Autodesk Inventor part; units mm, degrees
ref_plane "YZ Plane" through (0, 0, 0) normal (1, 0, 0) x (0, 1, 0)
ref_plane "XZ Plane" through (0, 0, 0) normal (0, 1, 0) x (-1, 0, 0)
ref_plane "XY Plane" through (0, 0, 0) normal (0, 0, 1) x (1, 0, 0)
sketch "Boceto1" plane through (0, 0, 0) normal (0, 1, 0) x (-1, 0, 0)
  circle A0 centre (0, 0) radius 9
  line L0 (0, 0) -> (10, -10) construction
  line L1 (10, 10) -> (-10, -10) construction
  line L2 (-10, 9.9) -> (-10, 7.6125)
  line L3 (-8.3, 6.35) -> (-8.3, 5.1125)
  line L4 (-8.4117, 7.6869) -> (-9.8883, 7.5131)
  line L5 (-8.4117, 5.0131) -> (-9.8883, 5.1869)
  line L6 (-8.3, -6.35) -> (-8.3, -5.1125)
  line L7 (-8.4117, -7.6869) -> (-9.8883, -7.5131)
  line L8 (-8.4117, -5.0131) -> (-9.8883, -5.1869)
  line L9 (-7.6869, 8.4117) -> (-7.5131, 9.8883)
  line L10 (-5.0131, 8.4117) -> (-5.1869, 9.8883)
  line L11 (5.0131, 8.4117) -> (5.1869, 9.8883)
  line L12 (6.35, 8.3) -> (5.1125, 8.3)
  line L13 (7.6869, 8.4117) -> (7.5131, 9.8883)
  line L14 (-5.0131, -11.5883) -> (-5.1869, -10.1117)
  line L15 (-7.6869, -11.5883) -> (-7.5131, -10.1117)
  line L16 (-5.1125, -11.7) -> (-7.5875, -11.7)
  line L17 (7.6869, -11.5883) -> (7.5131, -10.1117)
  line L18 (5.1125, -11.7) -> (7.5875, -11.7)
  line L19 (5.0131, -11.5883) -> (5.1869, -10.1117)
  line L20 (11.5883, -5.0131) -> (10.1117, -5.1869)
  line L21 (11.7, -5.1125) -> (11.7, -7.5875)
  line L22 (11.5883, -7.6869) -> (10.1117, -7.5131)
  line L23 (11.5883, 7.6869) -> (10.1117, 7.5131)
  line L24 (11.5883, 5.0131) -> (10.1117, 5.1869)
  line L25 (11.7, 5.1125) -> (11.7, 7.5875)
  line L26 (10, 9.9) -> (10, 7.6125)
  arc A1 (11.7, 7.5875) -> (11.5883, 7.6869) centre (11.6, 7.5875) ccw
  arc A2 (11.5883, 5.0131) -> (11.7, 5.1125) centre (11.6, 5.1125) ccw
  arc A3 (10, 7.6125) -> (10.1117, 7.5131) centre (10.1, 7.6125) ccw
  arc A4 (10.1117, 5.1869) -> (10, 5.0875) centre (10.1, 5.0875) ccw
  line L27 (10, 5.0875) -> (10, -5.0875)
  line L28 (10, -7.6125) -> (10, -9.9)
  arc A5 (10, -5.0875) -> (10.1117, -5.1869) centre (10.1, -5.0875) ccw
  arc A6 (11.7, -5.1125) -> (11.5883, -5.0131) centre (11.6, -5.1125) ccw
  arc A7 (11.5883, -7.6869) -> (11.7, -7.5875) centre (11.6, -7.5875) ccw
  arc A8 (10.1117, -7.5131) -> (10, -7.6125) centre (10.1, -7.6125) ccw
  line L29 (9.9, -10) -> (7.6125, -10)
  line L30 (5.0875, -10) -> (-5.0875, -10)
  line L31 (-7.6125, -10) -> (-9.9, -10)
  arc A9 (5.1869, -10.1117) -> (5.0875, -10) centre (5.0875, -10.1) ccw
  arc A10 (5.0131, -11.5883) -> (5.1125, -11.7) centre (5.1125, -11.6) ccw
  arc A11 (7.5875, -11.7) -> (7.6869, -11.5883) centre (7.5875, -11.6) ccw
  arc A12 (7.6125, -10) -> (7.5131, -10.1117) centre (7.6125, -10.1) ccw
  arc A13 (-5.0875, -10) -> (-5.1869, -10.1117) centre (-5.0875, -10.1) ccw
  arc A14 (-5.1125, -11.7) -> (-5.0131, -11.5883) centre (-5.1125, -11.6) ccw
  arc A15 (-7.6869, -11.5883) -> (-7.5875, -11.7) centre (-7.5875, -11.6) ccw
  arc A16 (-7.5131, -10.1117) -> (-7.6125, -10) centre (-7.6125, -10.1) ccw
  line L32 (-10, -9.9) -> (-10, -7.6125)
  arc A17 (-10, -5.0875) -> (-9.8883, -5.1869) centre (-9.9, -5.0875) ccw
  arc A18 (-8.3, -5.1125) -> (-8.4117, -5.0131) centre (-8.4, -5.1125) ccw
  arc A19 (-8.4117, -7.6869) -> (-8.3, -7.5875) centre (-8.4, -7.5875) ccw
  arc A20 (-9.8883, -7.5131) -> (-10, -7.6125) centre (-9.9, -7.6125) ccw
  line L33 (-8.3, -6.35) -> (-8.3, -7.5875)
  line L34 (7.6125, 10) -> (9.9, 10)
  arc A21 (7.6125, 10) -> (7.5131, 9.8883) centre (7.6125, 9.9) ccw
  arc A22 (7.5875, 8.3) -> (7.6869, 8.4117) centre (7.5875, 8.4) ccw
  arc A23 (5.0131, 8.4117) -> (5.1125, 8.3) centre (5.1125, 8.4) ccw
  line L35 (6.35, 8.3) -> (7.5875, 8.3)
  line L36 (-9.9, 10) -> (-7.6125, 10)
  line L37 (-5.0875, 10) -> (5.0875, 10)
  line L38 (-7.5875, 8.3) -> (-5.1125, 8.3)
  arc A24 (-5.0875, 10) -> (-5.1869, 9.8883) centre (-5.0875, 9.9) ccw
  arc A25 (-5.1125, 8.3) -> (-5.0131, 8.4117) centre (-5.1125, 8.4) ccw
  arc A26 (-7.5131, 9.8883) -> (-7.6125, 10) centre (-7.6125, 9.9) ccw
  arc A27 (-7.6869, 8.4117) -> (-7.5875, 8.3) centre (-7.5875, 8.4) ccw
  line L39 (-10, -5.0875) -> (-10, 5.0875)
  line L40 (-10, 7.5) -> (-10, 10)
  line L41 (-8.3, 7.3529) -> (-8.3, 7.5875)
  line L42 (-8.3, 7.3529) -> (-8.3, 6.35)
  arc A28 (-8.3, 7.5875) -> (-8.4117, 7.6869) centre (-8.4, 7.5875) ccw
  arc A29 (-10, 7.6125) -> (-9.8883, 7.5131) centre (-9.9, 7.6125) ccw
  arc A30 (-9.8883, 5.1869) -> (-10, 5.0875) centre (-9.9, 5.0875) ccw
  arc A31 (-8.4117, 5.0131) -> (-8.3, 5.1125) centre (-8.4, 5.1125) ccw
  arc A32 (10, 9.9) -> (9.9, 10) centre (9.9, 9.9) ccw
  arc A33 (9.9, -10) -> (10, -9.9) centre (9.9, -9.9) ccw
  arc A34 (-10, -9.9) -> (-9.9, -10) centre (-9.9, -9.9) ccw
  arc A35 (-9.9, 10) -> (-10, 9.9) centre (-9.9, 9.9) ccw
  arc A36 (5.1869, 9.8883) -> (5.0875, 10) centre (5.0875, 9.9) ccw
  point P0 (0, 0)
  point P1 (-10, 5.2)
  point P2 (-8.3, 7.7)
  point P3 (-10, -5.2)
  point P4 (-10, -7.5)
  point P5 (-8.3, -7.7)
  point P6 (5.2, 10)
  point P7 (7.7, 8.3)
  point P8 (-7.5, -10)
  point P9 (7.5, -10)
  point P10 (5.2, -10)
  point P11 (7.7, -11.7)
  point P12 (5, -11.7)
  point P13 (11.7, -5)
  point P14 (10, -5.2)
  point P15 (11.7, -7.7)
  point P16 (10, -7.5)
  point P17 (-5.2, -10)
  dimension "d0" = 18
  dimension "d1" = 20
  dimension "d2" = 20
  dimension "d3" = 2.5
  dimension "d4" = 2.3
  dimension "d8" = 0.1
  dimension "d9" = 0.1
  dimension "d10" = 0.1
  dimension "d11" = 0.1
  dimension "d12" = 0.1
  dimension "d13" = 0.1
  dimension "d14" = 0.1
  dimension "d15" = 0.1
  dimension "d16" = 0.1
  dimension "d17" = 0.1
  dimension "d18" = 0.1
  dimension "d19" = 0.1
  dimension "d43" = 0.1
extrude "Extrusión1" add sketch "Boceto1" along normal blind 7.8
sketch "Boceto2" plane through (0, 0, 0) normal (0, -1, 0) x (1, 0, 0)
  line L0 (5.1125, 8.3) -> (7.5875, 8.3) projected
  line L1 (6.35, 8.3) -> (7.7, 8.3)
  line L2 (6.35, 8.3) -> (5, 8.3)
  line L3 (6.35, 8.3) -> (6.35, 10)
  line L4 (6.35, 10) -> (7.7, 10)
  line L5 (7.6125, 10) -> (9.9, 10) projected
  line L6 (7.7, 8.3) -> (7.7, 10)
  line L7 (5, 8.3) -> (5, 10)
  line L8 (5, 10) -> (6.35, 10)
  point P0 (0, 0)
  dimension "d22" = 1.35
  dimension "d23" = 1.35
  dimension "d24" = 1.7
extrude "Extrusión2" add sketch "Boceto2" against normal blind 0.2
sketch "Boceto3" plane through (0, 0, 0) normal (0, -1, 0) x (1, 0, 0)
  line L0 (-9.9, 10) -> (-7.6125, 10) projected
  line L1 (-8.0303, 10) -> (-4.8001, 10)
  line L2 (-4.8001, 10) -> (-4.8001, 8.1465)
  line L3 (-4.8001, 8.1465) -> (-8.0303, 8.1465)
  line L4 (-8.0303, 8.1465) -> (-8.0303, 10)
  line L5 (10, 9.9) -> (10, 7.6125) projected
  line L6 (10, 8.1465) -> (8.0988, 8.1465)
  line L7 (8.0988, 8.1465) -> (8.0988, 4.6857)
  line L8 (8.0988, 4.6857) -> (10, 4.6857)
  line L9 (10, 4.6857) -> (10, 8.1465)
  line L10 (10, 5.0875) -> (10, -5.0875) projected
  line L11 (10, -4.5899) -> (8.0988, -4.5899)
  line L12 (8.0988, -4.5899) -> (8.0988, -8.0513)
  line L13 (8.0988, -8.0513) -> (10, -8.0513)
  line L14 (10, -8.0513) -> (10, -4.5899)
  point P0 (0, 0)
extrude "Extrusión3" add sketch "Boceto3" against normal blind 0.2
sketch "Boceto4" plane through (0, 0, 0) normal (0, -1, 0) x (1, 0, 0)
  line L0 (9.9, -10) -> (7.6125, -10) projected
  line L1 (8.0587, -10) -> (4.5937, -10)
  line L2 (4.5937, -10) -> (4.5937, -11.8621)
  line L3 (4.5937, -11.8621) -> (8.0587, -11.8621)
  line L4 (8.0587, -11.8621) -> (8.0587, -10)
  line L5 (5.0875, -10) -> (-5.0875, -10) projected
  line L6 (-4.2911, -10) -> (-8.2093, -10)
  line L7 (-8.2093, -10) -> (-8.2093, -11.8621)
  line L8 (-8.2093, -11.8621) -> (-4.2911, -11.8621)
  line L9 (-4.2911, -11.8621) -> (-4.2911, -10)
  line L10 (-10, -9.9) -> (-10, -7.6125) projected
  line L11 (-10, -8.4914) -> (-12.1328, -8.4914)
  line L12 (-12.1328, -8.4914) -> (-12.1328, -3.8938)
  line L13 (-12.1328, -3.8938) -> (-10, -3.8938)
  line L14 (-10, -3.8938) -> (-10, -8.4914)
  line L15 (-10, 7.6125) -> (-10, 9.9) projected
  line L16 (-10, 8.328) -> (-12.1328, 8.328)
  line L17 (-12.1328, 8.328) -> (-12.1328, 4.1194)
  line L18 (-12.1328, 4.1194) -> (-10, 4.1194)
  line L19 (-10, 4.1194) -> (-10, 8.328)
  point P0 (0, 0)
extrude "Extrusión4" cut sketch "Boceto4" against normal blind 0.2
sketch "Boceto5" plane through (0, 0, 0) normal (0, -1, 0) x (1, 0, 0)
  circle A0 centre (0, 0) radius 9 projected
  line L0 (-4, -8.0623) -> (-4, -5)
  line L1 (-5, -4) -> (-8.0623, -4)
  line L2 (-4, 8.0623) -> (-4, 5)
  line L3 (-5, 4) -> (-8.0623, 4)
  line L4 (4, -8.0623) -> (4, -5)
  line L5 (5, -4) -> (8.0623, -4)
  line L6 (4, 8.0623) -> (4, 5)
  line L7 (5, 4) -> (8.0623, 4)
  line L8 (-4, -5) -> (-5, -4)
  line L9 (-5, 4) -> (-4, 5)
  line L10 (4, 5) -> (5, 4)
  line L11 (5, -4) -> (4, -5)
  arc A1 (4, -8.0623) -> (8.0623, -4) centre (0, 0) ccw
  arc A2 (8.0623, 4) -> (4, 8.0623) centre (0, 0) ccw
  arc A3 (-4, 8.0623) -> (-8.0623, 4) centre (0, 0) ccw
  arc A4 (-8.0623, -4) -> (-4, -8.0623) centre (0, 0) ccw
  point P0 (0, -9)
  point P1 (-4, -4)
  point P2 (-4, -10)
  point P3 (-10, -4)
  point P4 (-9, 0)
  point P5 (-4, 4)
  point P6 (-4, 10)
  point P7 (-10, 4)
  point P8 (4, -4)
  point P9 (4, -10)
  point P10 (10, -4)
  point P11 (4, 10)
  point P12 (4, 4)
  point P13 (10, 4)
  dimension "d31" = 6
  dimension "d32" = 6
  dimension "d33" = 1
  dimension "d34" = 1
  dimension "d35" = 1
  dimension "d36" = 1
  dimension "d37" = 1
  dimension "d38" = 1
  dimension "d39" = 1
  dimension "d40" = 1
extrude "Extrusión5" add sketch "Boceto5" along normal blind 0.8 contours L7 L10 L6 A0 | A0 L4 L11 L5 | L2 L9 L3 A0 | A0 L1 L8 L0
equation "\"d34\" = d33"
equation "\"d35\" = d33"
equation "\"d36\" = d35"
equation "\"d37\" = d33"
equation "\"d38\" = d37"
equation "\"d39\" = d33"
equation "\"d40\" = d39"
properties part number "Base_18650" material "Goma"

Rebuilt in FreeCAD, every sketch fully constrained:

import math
import FreeCAD as App
import Part
import Sketcher
from FreeCAD import Vector

doc = App.newDocument("Part")
body = doc.addObject("PartDesign::Body", "Body")
body.AllowCompound = True

# Sketch on XZ plane
sketch1 = doc.addObject("Sketcher::SketchObject", "Sketch")
body.addObject(sketch1)
sketch1.AttachmentSupport = (doc.XZ_Plane, [""])
sketch1.MapMode = "FlatFace"
sketch1.addGeometry([
    Part.ArcOfCircle(Part.Circle(Vector(9.9, 9.9, 0), Vector(0, 0, 1), 0.1), math.radians(0), math.radians(90)),  # 0
    Part.LineSegment(Vector(10, 9.9, 0), Vector(10, 7.6125, 0)),  # 1
    Part.ArcOfCircle(Part.Circle(Vector(9.9, 7.6125, 0), Vector(0, 0, 1), 0.1), math.radians(-96.713181), math.radians(0)),  # 2
    Part.LineSegment(Vector(9.8883, 7.5131, 0), Vector(8.4117, 7.6869, 0)),  # 3
    Part.ArcOfCircle(Part.Circle(Vector(8.4, 7.5875, 0), Vector(0, 0, 1), 0.1), math.radians(83.286819), math.radians(180)),  # 4
    Part.LineSegment(Vector(8.3, 7.5875, 0), Vector(8.3, 5.1125, 0)),  # 5
    Part.ArcOfCircle(Part.Circle(Vector(8.4, 5.1125, 0), Vector(0, 0, 1), 0.100086), math.radians(180), math.radians(276.713181)),  # 6
    Part.LineSegment(Vector(8.4117, 5.0131, 0), Vector(9.8883, 5.1869, 0)),  # 7
    Part.ArcOfCircle(Part.Circle(Vector(9.9, 5.0875, 0), Vector(0, 0, 1), 0.100086), math.radians(0), math.radians(96.713181)),  # 8
    Part.LineSegment(Vector(10, 5.0875, 0), Vector(10, -5.0875, 0)),  # 9
    Part.ArcOfCircle(Part.Circle(Vector(9.9, -5.0875, 0), Vector(0, 0, 1), 0.1), math.radians(-96.713181), math.radians(0)),  # 10
    Part.LineSegment(Vector(9.8883, -5.1869, 0), Vector(8.4117, -5.0131, 0)),  # 11
    Part.ArcOfCircle(Part.Circle(Vector(8.4, -5.1125, 0), Vector(0, 0, 1), 0.1), math.radians(83.286819), math.radians(180)),  # 12
    Part.LineSegment(Vector(8.3, -5.1125, 0), Vector(8.3, -7.5875, 0)),  # 13
    Part.ArcOfCircle(Part.Circle(Vector(8.4, -7.5875, 0), Vector(0, 0, 1), 0.100086), math.radians(180), math.radians(276.713181)),  # 14
    Part.LineSegment(Vector(8.4117, -7.6869, 0), Vector(9.8883, -7.5131, 0)),  # 15
    Part.ArcOfCircle(Part.Circle(Vector(9.9, -7.6125, 0), Vector(0, 0, 1), 0.100086), math.radians(0), math.radians(96.713181)),  # 16
    Part.LineSegment(Vector(10, -7.6125, 0), Vector(10, -9.9, 0)),  # 17
    Part.ArcOfCircle(Part.Circle(Vector(9.9, -9.9, 0), Vector(0, 0, 1), 0.1), math.radians(-90), math.radians(0)),  # 18
    Part.LineSegment(Vector(9.9, -10, 0), Vector(7.6125, -10, 0)),  # 19
    Part.ArcOfCircle(Part.Circle(Vector(7.6125, -10.1, 0), Vector(0, 0, 1), 0.100086), math.radians(90), math.radians(186.713181)),  # 20
    Part.LineSegment(Vector(7.5131, -10.1117, 0), Vector(7.6869, -11.5883, 0)),  # 21
    Part.ArcOfCircle(Part.Circle(Vector(7.5875, -11.6, 0), Vector(0, 0, 1), 0.100086), math.radians(-90), math.radians(6.713181)),  # 22
    Part.LineSegment(Vector(7.5875, -11.7, 0), Vector(5.1125, -11.7, 0)),  # 23
    Part.ArcOfCircle(Part.Circle(Vector(5.1125, -11.6, 0), Vector(0, 0, 1), 0.1), math.radians(173.286819), math.radians(270)),  # 24
    Part.LineSegment(Vector(5.0131, -11.5883, 0), Vector(5.1869, -10.1117, 0)),  # 25
    Part.ArcOfCircle(Part.Circle(Vector(5.0875, -10.1, 0), Vector(0, 0, 1), 0.1), math.radians(-6.713181), math.radians(90)),  # 26
    Part.LineSegment(Vector(5.0875, -10, 0), Vector(-5.0875, -10, 0)),  # 27
    Part.ArcOfCircle(Part.Circle(Vector(-5.0875, -10.1, 0), Vector(0, 0, 1), 0.100086), math.radians(90), math.radians(186.713181)),  # 28
    Part.LineSegment(Vector(-5.1869, -10.1117, 0), Vector(-5.0131, -11.5883, 0)),  # 29
    Part.ArcOfCircle(Part.Circle(Vector(-5.1125, -11.6, 0), Vector(0, 0, 1), 0.100086), math.radians(-90), math.radians(6.713181)),  # 30
    Part.LineSegment(Vector(-5.1125, -11.7, 0), Vector(-7.5875, -11.7, 0)),  # 31
    Part.ArcOfCircle(Part.Circle(Vector(-7.5875, -11.6, 0), Vector(0, 0, 1), 0.1), math.radians(173.286819), math.radians(270)),  # 32
    Part.LineSegment(Vector(-7.6869, -11.5883, 0), Vector(-7.5131, -10.1117, 0)),  # 33
    Part.ArcOfCircle(Part.Circle(Vector(-7.6125, -10.1, 0), Vector(0, 0, 1), 0.1), math.radians(-6.713181), math.radians(90)),  # 34
    Part.LineSegment(Vector(-7.6125, -10, 0), Vector(-9.9, -10, 0)),  # 35
    Part.ArcOfCircle(Part.Circle(Vector(-9.9, -9.9, 0), Vector(0, 0, 1), 0.1), math.radians(180), math.radians(270)),  # 36
    Part.LineSegment(Vector(-10, -9.9, 0), Vector(-10, -7.6125, 0)),  # 37
    Part.ArcOfCircle(Part.Circle(Vector(-10.1, -7.6125, 0), Vector(0, 0, 1), 0.100086), math.radians(0), math.radians(96.713181)),  # 38
    Part.LineSegment(Vector(-10.1117, -7.5131, 0), Vector(-11.5883, -7.6869, 0)),  # 39
    Part.ArcOfCircle(Part.Circle(Vector(-11.6, -7.5875, 0), Vector(0, 0, 1), 0.100086), math.radians(180), math.radians(276.713181)),  # 40
    Part.LineSegment(Vector(-11.7, -7.5875, 0), Vector(-11.7, -5.1125, 0)),  # 41
    Part.ArcOfCircle(Part.Circle(Vector(-11.6, -5.1125, 0), Vector(0, 0, 1), 0.1), math.radians(83.286819), math.radians(180)),  # 42
    Part.LineSegment(Vector(-11.5883, -5.0131, 0), Vector(-10.1117, -5.1869, 0)),  # 43
    Part.ArcOfCircle(Part.Circle(Vector(-10.1, -5.0875, 0), Vector(0, 0, 1), 0.1), math.radians(-96.713181), math.radians(0)),  # 44
    Part.LineSegment(Vector(-10, -5.0875, 0), Vector(-10, 5.0875, 0)),  # 45
    Part.ArcOfCircle(Part.Circle(Vector(-10.1, 5.0875, 0), Vector(0, 0, 1), 0.100086), math.radians(0), math.radians(96.713181)),  # 46
    Part.LineSegment(Vector(-10.1117, 5.1869, 0), Vector(-11.5883, 5.0131, 0)),  # 47
    Part.ArcOfCircle(Part.Circle(Vector(-11.6, 5.1125, 0), Vector(0, 0, 1), 0.100086), math.radians(180), math.radians(276.713181)),  # 48
    Part.LineSegment(Vector(-11.7, 5.1125, 0), Vector(-11.7, 7.5875, 0)),  # 49
    Part.ArcOfCircle(Part.Circle(Vector(-11.6, 7.5875, 0), Vector(0, 0, 1), 0.1), math.radians(83.286819), math.radians(180)),  # 50
    Part.LineSegment(Vector(-11.5883, 7.6869, 0), Vector(-10.1117, 7.5131, 0)),  # 51
    Part.ArcOfCircle(Part.Circle(Vector(-10.1, 7.6125, 0), Vector(0, 0, 1), 0.1), math.radians(-96.713181), math.radians(0)),  # 52
    Part.LineSegment(Vector(-10, 7.6125, 0), Vector(-10, 9.9, 0)),  # 53
    Part.ArcOfCircle(Part.Circle(Vector(-9.9, 9.9, 0), Vector(0, 0, 1), 0.1), math.radians(90), math.radians(180)),  # 54
    Part.LineSegment(Vector(-9.9, 10, 0), Vector(-7.6125, 10, 0)),  # 55
    Part.ArcOfCircle(Part.Circle(Vector(-7.6125, 9.9, 0), Vector(0, 0, 1), 0.1), math.radians(-6.713181), math.radians(90)),  # 56
    Part.LineSegment(Vector(-7.5131, 9.8883, 0), Vector(-7.6869, 8.4117, 0)),  # 57
    Part.ArcOfCircle(Part.Circle(Vector(-7.5875, 8.4, 0), Vector(0, 0, 1), 0.1), math.radians(173.286819), math.radians(270)),  # 58
    Part.LineSegment(Vector(-7.5875, 8.3, 0), Vector(-5.1125, 8.3, 0)),  # 59
    Part.ArcOfCircle(Part.Circle(Vector(-5.1125, 8.4, 0), Vector(0, 0, 1), 0.100086), math.radians(-90), math.radians(6.713181)),  # 60
    Part.LineSegment(Vector(-5.0131, 8.4117, 0), Vector(-5.1869, 9.8883, 0)),  # 61
    Part.ArcOfCircle(Part.Circle(Vector(-5.0875, 9.9, 0), Vector(0, 0, 1), 0.100086), math.radians(90), math.radians(186.713181)),  # 62
    Part.LineSegment(Vector(-5.0875, 10, 0), Vector(5.0875, 10, 0)),  # 63
    Part.ArcOfCircle(Part.Circle(Vector(5.0875, 9.9, 0), Vector(0, 0, 1), 0.1), math.radians(-6.713181), math.radians(90)),  # 64
    Part.LineSegment(Vector(5.1869, 9.8883, 0), Vector(5.0131, 8.4117, 0)),  # 65
    Part.ArcOfCircle(Part.Circle(Vector(5.1125, 8.4, 0), Vector(0, 0, 1), 0.1), math.radians(173.286819), math.radians(270)),  # 66
    Part.LineSegment(Vector(5.1125, 8.3, 0), Vector(7.5875, 8.3, 0)),  # 67
    Part.ArcOfCircle(Part.Circle(Vector(7.5875, 8.4, 0), Vector(0, 0, 1), 0.100086), math.radians(-90), math.radians(6.713181)),  # 68
    Part.LineSegment(Vector(7.6869, 8.4117, 0), Vector(7.5131, 9.8883, 0)),  # 69
    Part.ArcOfCircle(Part.Circle(Vector(7.6125, 9.9, 0), Vector(0, 0, 1), 0.100086), math.radians(90), math.radians(186.713181)),  # 70
    Part.LineSegment(Vector(7.6125, 10, 0), Vector(9.9, 10, 0)),  # 71
    Part.Circle(Vector(0, 0, 0), Vector(0, 0, 1), 9),  # 72
], False)
sketch1.addConstraint([
    Sketcher.Constraint("Tangent", 0, 1, 1, 1),
    Sketcher.Constraint("Tangent", 1, 2, 2, 2),
    Sketcher.Constraint("Tangent", 2, 1, 3, 1),
    Sketcher.Constraint("Tangent", 3, 2, 4, 1),
    Sketcher.Constraint("Tangent", 4, 2, 5, 1),
    Sketcher.Constraint("Tangent", 5, 2, 6, 1),
    Sketcher.Constraint("Tangent", 6, 2, 7, 1),
    Sketcher.Constraint("Tangent", 7, 2, 8, 2),
    Sketcher.Constraint("Tangent", 8, 1, 9, 1),
    Sketcher.Constraint("Tangent", 9, 2, 10, 2),
    Sketcher.Constraint("Tangent", 10, 1, 11, 1),
    Sketcher.Constraint("Tangent", 11, 2, 12, 1),
    Sketcher.Constraint("Tangent", 12, 2, 13, 1),
    Sketcher.Constraint("Tangent", 13, 2, 14, 1),
    Sketcher.Constraint("Tangent", 14, 2, 15, 1),
    Sketcher.Constraint("Tangent", 15, 2, 16, 2),
    Sketcher.Constraint("Tangent", 16, 1, 17, 1),
    Sketcher.Constraint("Tangent", 17, 2, 18, 2),
    Sketcher.Constraint("Tangent", 18, 1, 19, 1),
    Sketcher.Constraint("Tangent", 19, 2, 20, 1),
    Sketcher.Constraint("Tangent", 20, 2, 21, 1),
    Sketcher.Constraint("Tangent", 21, 2, 22, 2),
    Sketcher.Constraint("Tangent", 22, 1, 23, 1),
    Sketcher.Constraint("Tangent", 23, 2, 24, 2),
    Sketcher.Constraint("Tangent", 24, 1, 25, 1),
    Sketcher.Constraint("Tangent", 25, 2, 26, 1),
    Sketcher.Constraint("Tangent", 26, 2, 27, 1),
    Sketcher.Constraint("Tangent", 27, 2, 28, 1),
    Sketcher.Constraint("Tangent", 28, 2, 29, 1),
    Sketcher.Constraint("Tangent", 29, 2, 30, 2),
    Sketcher.Constraint("Tangent", 30, 1, 31, 1),
    Sketcher.Constraint("Tangent", 31, 2, 32, 2),
    Sketcher.Constraint("Tangent", 32, 1, 33, 1),
    Sketcher.Constraint("Tangent", 33, 2, 34, 1),
    Sketcher.Constraint("Tangent", 34, 2, 35, 1),
    Sketcher.Constraint("Tangent", 35, 2, 36, 2),
    Sketcher.Constraint("Tangent", 36, 1, 37, 1),
    Sketcher.Constraint("Tangent", 37, 2, 38, 1),
    Sketcher.Constraint("Tangent", 38, 2, 39, 1),
    Sketcher.Constraint("Tangent", 39, 2, 40, 2),
    Sketcher.Constraint("Tangent", 40, 1, 41, 1),
    Sketcher.Constraint("Tangent", 41, 2, 42, 2),
    Sketcher.Constraint("Tangent", 42, 1, 43, 1),
    Sketcher.Constraint("Tangent", 43, 2, 44, 1),
    Sketcher.Constraint("Tangent", 44, 2, 45, 1),
    Sketcher.Constraint("Tangent", 45, 2, 46, 1),
    Sketcher.Constraint("Tangent", 46, 2, 47, 1),
    Sketcher.Constraint("Tangent", 47, 2, 48, 2),
    Sketcher.Constraint("Tangent", 48, 1, 49, 1),
    Sketcher.Constraint("Tangent", 49, 2, 50, 2),
    Sketcher.Constraint("Tangent", 50, 1, 51, 1),
    Sketcher.Constraint("Tangent", 51, 2, 52, 1),
    Sketcher.Constraint("Tangent", 52, 2, 53, 1),
    Sketcher.Constraint("Tangent", 53, 2, 54, 2),
    Sketcher.Constraint("Tangent", 54, 1, 55, 1),
    Sketcher.Constraint("Tangent", 55, 2, 56, 2),
    Sketcher.Constraint("Tangent", 56, 1, 57, 1),
    Sketcher.Constraint("Tangent", 57, 2, 58, 1),
    Sketcher.Constraint("Tangent", 58, 2, 59, 1),
    Sketcher.Constraint("Tangent", 59, 2, 60, 1),
    Sketcher.Constraint("Tangent", 60, 2, 61, 1),
    Sketcher.Constraint("Tangent", 61, 2, 62, 2),
    Sketcher.Constraint("Tangent", 62, 1, 63, 1),
    Sketcher.Constraint("Tangent", 63, 2, 64, 2),
    Sketcher.Constraint("Tangent", 64, 1, 65, 1),
    Sketcher.Constraint("Tangent", 65, 2, 66, 1),
    Sketcher.Constraint("Tangent", 66, 2, 67, 1),
    Sketcher.Constraint("Tangent", 67, 2, 68, 1),
    Sketcher.Constraint("Tangent", 68, 2, 69, 1),
    Sketcher.Constraint("Tangent", 69, 2, 70, 2),
    Sketcher.Constraint("Tangent", 70, 1, 71, 1),
    Sketcher.Constraint("Tangent", 71, 2, 0, 2),
    Sketcher.Constraint("Vertical", 1),
    Sketcher.Constraint("Vertical", 5),
    Sketcher.Constraint("Vertical", 9),
    Sketcher.Constraint("Vertical", 13),
    Sketcher.Constraint("Vertical", 17),
    Sketcher.Constraint("Horizontal", 19),
    Sketcher.Constraint("Horizontal", 23),
    Sketcher.Constraint("Horizontal", 27),
    Sketcher.Constraint("Horizontal", 31),
    Sketcher.Constraint("Horizontal", 35),
    Sketcher.Constraint("Vertical", 37),
    Sketcher.Constraint("Vertical", 41),
    Sketcher.Constraint("Vertical", 45),
    Sketcher.Constraint("Vertical", 49),
    Sketcher.Constraint("Vertical", 53),
    Sketcher.Constraint("Horizontal", 55),
    Sketcher.Constraint("Horizontal", 59),
    Sketcher.Constraint("Horizontal", 63),
    Sketcher.Constraint("Horizontal", 67),
    Sketcher.Constraint("Horizontal", 71),
    Sketcher.Constraint("Coincident", 72, 3, -1, 1),
    Sketcher.Constraint("Equal", 0, 2),
    Sketcher.Constraint("Equal", 2, 4),
    Sketcher.Constraint("Equal", 4, 6),
    Sketcher.Constraint("Equal", 6, 8),
    Sketcher.Constraint("Equal", 8, 10),
    Sketcher.Constraint("Equal", 10, 12),
    Sketcher.Constraint("Equal", 12, 14),
    Sketcher.Constraint("Equal", 14, 16),
    Sketcher.Constraint("Equal", 16, 18),
    Sketcher.Constraint("Equal", 18, 20),
    Sketcher.Constraint("Equal", 20, 22),
    Sketcher.Constraint("Equal", 22, 24),
    Sketcher.Constraint("Equal", 24, 26),
    Sketcher.Constraint("Equal", 26, 28),
    Sketcher.Constraint("Equal", 28, 30),
    Sketcher.Constraint("Equal", 30, 32),
    Sketcher.Constraint("Equal", 32, 34),
    Sketcher.Constraint("Equal", 34, 36),
    Sketcher.Constraint("Equal", 36, 38),
    Sketcher.Constraint("Equal", 38, 40),
    Sketcher.Constraint("Equal", 40, 42),
    Sketcher.Constraint("Equal", 42, 44),
    Sketcher.Constraint("Equal", 44, 46),
    Sketcher.Constraint("Equal", 46, 48),
    Sketcher.Constraint("Equal", 48, 50),
    Sketcher.Constraint("Equal", 50, 52),
    Sketcher.Constraint("Equal", 52, 54),
    Sketcher.Constraint("Equal", 54, 56),
    Sketcher.Constraint("Equal", 56, 58),
    Sketcher.Constraint("Equal", 58, 60),
    Sketcher.Constraint("Equal", 60, 62),
    Sketcher.Constraint("Equal", 62, 64),
    Sketcher.Constraint("Equal", 64, 66),
    Sketcher.Constraint("Equal", 66, 68),
    Sketcher.Constraint("Equal", 68, 70),
    Sketcher.Constraint("Symmetric", 0, 3, 36, 3, -1, 1),
    Sketcher.Constraint("Symmetric", 18, 3, 54, 3, -1, 1),
    Sketcher.Constraint("Symmetric", 8, 1, 44, 2, -1, 1),
    Sketcher.Constraint("Symmetric", 26, 2, 62, 1, -1, 1),
    Sketcher.Constraint("Symmetric", 24, 3, 30, 3, -2),
    Sketcher.Constraint("Symmetric", 20, 3, 34, 3, -2),
    Sketcher.Constraint("Symmetric", 60, 3, 66, 3, -2),
    Sketcher.Constraint("Symmetric", 16, 1, 37, 2, -2),
    Sketcher.Constraint("Symmetric", 57, 2, 68, 2, -2),
    Sketcher.Constraint("Symmetric", 6, 3, 12, 3, -1),
    Sketcher.Constraint("Symmetric", 42, 3, 48, 3, -1),
    Sketcher.Constraint("Symmetric", 3, 2, 14, 2, -1),
    Sketcher.Constraint("Symmetric", 39, 2, 50, 1, -1),
    Sketcher.Constraint("Parallel", 3, 11),
    Sketcher.Constraint("Parallel", 7, 15),
    Sketcher.Constraint("Perpendicular", 15, 21),
    Sketcher.Constraint("Perpendicular", 11, 25),
    Sketcher.Constraint("Parallel", 21, 29),
    Sketcher.Constraint("Parallel", 25, 33),
    Sketcher.Constraint("Perpendicular", 29, 39),
    Sketcher.Constraint("Perpendicular", 33, 43),
    Sketcher.Constraint("Parallel", 39, 47),
    Sketcher.Constraint("Perpendicular", 51, 57),
    Sketcher.Constraint("Perpendicular", 47, 61),
    Sketcher.Constraint("Parallel", 57, 65),
    Sketcher.Constraint("Horizontal", 20, 3, 26, 3),
    Sketcher.Constraint("Horizontal", 14, 3, 40, 3),
    Sketcher.Constraint("Horizontal", 12, 3, 42, 3),
    Sketcher.Constraint("Vertical", 34, 3, 56, 3),
    Sketcher.Constraint("Vertical", 32, 3, 58, 3),
    Sketcher.Constraint("Equal", 71, 1),
    Sketcher.Constraint("Equal", 67, 5),
    Sketcher.Constraint("Equal", 63, 9),
    Sketcher.Constraint("Equal", 15, 21),
    Sketcher.Constraint("Diameter", 72, 18.0),
    Sketcher.Constraint("Radius", 0, 0.1),
    Sketcher.Constraint("DistanceX", -1, 1, 0, 1, 10.0),
    Sketcher.Constraint("DistanceX", -1, 1, 4, 3, 8.4),
    Sketcher.Constraint("DistanceX", 23, 2, 23, 1, 2.475),
    Sketcher.Constraint("DistanceX", 27, 2, 27, 1, 10.175),
    Sketcher.Constraint("DistanceX", 19, 2, 19, 1, 2.2875),
])
pad1 = doc.addObject("PartDesign::Pad", "Pad")
body.addObject(pad1)
pad1.Profile = sketch1
pad1.Length = 7.8
pad1.Reversed = True

# Sketch on XZ plane
sketch2 = doc.addObject("Sketcher::SketchObject", "Sketch001")
body.addObject(sketch2)
sketch2.AttachmentSupport = (doc.XZ_Plane, [""])
sketch2.MapMode = "FlatFace"
sketch2.addGeometry([
    Part.LineSegment(Vector(5, 8.3, 0), Vector(7.7, 8.3, 0)),
    Part.LineSegment(Vector(7.7, 8.3, 0), Vector(7.7, 10, 0)),
    Part.LineSegment(Vector(7.7, 10, 0), Vector(5, 10, 0)),
    Part.LineSegment(Vector(5, 10, 0), Vector(5, 8.3, 0)),
], False)
sketch2.addConstraint([
    Sketcher.Constraint("Coincident", 0, 2, 1, 1),
    Sketcher.Constraint("Coincident", 1, 2, 2, 1),
    Sketcher.Constraint("Coincident", 2, 2, 3, 1),
    Sketcher.Constraint("Coincident", 3, 2, 0, 1),
    Sketcher.Constraint("Horizontal", 0),
    Sketcher.Constraint("Vertical", 1),
    Sketcher.Constraint("Horizontal", 2),
    Sketcher.Constraint("Vertical", 3),
    Sketcher.Constraint("DistanceY", 1, 1, 1, 2, 1.7),
    Sketcher.Constraint("DistanceX", 0, 1, 0, 2, 2.7),
    Sketcher.Constraint("DistanceY", -1, 1, 1, 2, 10.0),
    Sketcher.Constraint("DistanceX", -1, 1, 2, 2, 5.0),
])
pad2 = doc.addObject("PartDesign::Pad", "Pad001")
body.addObject(pad2)
pad2.Profile = sketch2
pad2.Length = 0.2
pad2.Reversed = True

# Sketch on XZ plane
sketch3 = doc.addObject("Sketcher::SketchObject", "Sketch002")
body.addObject(sketch3)
sketch3.AttachmentSupport = (doc.XZ_Plane, [""])
sketch3.MapMode = "FlatFace"
sketch3.addGeometry([
    Part.LineSegment(Vector(-4.8001, 10, 0), Vector(-8.0303, 10, 0)),  # 0
    Part.LineSegment(Vector(-8.0303, 10, 0), Vector(-8.0303, 8.1465, 0)),  # 1
    Part.LineSegment(Vector(-8.0303, 8.1465, 0), Vector(-4.8001, 8.1465, 0)),  # 2
    Part.LineSegment(Vector(-4.8001, 8.1465, 0), Vector(-4.8001, 10, 0)),  # 3
    Part.LineSegment(Vector(10, -8.0513, 0), Vector(10, -4.5899, 0)),  # 4
    Part.LineSegment(Vector(10, -4.5899, 0), Vector(8.0988, -4.5899, 0)),  # 5
    Part.LineSegment(Vector(8.0988, -4.5899, 0), Vector(8.0988, -8.0513, 0)),  # 6
    Part.LineSegment(Vector(8.0988, -8.0513, 0), Vector(10, -8.0513, 0)),  # 7
    Part.LineSegment(Vector(10, 4.6857, 0), Vector(10, 8.1465, 0)),  # 8
    Part.LineSegment(Vector(10, 8.1465, 0), Vector(8.0988, 8.1465, 0)),  # 9
    Part.LineSegment(Vector(8.0988, 8.1465, 0), Vector(8.0988, 4.6857, 0)),  # 10
    Part.LineSegment(Vector(8.0988, 4.6857, 0), Vector(10, 4.6857, 0)),  # 11
], False)
sketch3.addConstraint([
    Sketcher.Constraint("Coincident", 0, 2, 1, 1),
    Sketcher.Constraint("Coincident", 1, 2, 2, 1),
    Sketcher.Constraint("Coincident", 2, 2, 3, 1),
    Sketcher.Constraint("Coincident", 3, 2, 0, 1),
    Sketcher.Constraint("Coincident", 4, 2, 5, 1),
    Sketcher.Constraint("Coincident", 5, 2, 6, 1),
    Sketcher.Constraint("Coincident", 6, 2, 7, 1),
    Sketcher.Constraint("Coincident", 7, 2, 4, 1),
    Sketcher.Constraint("Coincident", 8, 2, 9, 1),
    Sketcher.Constraint("Coincident", 9, 2, 10, 1),
    Sketcher.Constraint("Coincident", 10, 2, 11, 1),
    Sketcher.Constraint("Coincident", 11, 2, 8, 1),
    Sketcher.Constraint("Horizontal", 0),
    Sketcher.Constraint("Vertical", 1),
    Sketcher.Constraint("Horizontal", 2),
    Sketcher.Constraint("Vertical", 3),
    Sketcher.Constraint("Vertical", 4),
    Sketcher.Constraint("Horizontal", 5),
    Sketcher.Constraint("Vertical", 6),
    Sketcher.Constraint("Horizontal", 7),
    Sketcher.Constraint("Vertical", 8),
    Sketcher.Constraint("Horizontal", 9),
    Sketcher.Constraint("Vertical", 10),
    Sketcher.Constraint("Horizontal", 11),
    Sketcher.Constraint("Horizontal", 2, 2, 8, 2),
    Sketcher.Constraint("Vertical", 7, 2, 8, 2),
    Sketcher.Constraint("Vertical", 6, 2, 9, 2),
    Sketcher.Constraint("DistanceY", -1, 1, 0, 2, 10.0),
    Sketcher.Constraint("DistanceX", -1, 1, 4, 2, 10.0),
    Sketcher.Constraint("DistanceX", 2, 2, -1, 1, 4.8),
    Sketcher.Constraint("DistanceY", 4, 2, -1, 1, 4.59),
    Sketcher.Constraint("DistanceX", 0, 2, 0, 1, 3.2302),
    Sketcher.Constraint("DistanceX", 5, 2, 5, 1, 1.9012),
    Sketcher.Constraint("DistanceY", 1, 2, 1, 1, 1.8535),
    Sketcher.Constraint("DistanceY", 4, 1, 4, 2, 3.4614),
    Sketcher.Constraint("DistanceY", 8, 1, 8, 2, 3.4608),
])
pad3 = doc.addObject("PartDesign::Pad", "Pad002")
body.addObject(pad3)
pad3.Profile = sketch3
pad3.Length = 0.2
pad3.Reversed = True

# Sketch on XZ plane
sketch4 = doc.addObject("Sketcher::SketchObject", "Sketch003")
body.addObject(sketch4)
sketch4.AttachmentSupport = (doc.XZ_Plane, [""])
sketch4.MapMode = "FlatFace"
sketch4.addGeometry([
    Part.LineSegment(Vector(8.0587, -11.8621, 0), Vector(8.0587, -10, 0)),  # 0
    Part.LineSegment(Vector(8.0587, -10, 0), Vector(4.5937, -10, 0)),  # 1
    Part.LineSegment(Vector(4.5937, -10, 0), Vector(4.5937, -11.8621, 0)),  # 2
    Part.LineSegment(Vector(4.5937, -11.8621, 0), Vector(8.0587, -11.8621, 0)),  # 3
    Part.LineSegment(Vector(-4.2911, -11.8621, 0), Vector(-4.2911, -10, 0)),  # 4
    Part.LineSegment(Vector(-4.2911, -10, 0), Vector(-8.2093, -10, 0)),  # 5
    Part.LineSegment(Vector(-8.2093, -10, 0), Vector(-8.2093, -11.8621, 0)),  # 6
    Part.LineSegment(Vector(-8.2093, -11.8621, 0), Vector(-4.2911, -11.8621, 0)),  # 7
    Part.LineSegment(Vector(-12.1328, -8.4914, 0), Vector(-10, -8.4914, 0)),  # 8
    Part.LineSegment(Vector(-10, -8.4914, 0), Vector(-10, -3.8938, 0)),  # 9
    Part.LineSegment(Vector(-10, -3.8938, 0), Vector(-12.1328, -3.8938, 0)),  # 10
    Part.LineSegment(Vector(-12.1328, -3.8938, 0), Vector(-12.1328, -8.4914, 0)),  # 11
    Part.LineSegment(Vector(-10, 4.1194, 0), Vector(-10, 8.328, 0)),  # 12
    Part.LineSegment(Vector(-10, 8.328, 0), Vector(-12.1328, 8.328, 0)),  # 13
    Part.LineSegment(Vector(-12.1328, 8.328, 0), Vector(-12.1328, 4.1194, 0)),  # 14
    Part.LineSegment(Vector(-12.1328, 4.1194, 0), Vector(-10, 4.1194, 0)),  # 15
], False)
sketch4.addConstraint([
    Sketcher.Constraint("Coincident", 0, 2, 1, 1),
    Sketcher.Constraint("Coincident", 1, 2, 2, 1),
    Sketcher.Constraint("Coincident", 2, 2, 3, 1),
    Sketcher.Constraint("Coincident", 3, 2, 0, 1),
    Sketcher.Constraint("Coincident", 4, 2, 5, 1),
    Sketcher.Constraint("Coincident", 5, 2, 6, 1),
    Sketcher.Constraint("Coincident", 6, 2, 7, 1),
    Sketcher.Constraint("Coincident", 7, 2, 4, 1),
    Sketcher.Constraint("Coincident", 8, 2, 9, 1),
    Sketcher.Constraint("Coincident", 9, 2, 10, 1),
    Sketcher.Constraint("Coincident", 10, 2, 11, 1),
    Sketcher.Constraint("Coincident", 11, 2, 8, 1),
    Sketcher.Constraint("Coincident", 12, 2, 13, 1),
    Sketcher.Constraint("Coincident", 13, 2, 14, 1),
    Sketcher.Constraint("Coincident", 14, 2, 15, 1),
    Sketcher.Constraint("Coincident", 15, 2, 12, 1),
    Sketcher.Constraint("Vertical", 0),
    Sketcher.Constraint("Horizontal", 1),
    Sketcher.Constraint("Vertical", 2),
    Sketcher.Constraint("Horizontal", 3),
    Sketcher.Constraint("Vertical", 4),
    Sketcher.Constraint("Horizontal", 5),
    Sketcher.Constraint("Vertical", 6),
    Sketcher.Constraint("Horizontal", 7),
    Sketcher.Constraint("Horizontal", 8),
    Sketcher.Constraint("Vertical", 9),
    Sketcher.Constraint("Horizontal", 10),
    Sketcher.Constraint("Vertical", 11),
    Sketcher.Constraint("Vertical", 12),
    Sketcher.Constraint("Horizontal", 13),
    Sketcher.Constraint("Vertical", 14),
    Sketcher.Constraint("Horizontal", 15),
    Sketcher.Constraint("Horizontal", 1, 2, 4, 2),
    Sketcher.Constraint("Horizontal", 3, 2, 6, 2),
    Sketcher.Constraint("Vertical", 9, 2, 12, 2),
    Sketcher.Constraint("Vertical", 11, 2, 13, 2),
    Sketcher.Constraint("DistanceY", 0, 2, -1, 1, 10.0),
    Sketcher.Constraint("DistanceX", 8, 2, -1, 1, 10.0),
    Sketcher.Constraint("DistanceX", 1, 2, 1, 1, 3.465),
    Sketcher.Constraint("DistanceY", 0, 1, 0, 2, 1.862),
    Sketcher.Constraint("DistanceX", 5, 2, 5, 1, 3.9182),
    Sketcher.Constraint("DistanceX", 8, 1, 8, 2, 2.1328),
    Sketcher.Constraint("DistanceY", 9, 1, 9, 2, 4.5976),
    Sketcher.Constraint("DistanceY", 12, 1, 12, 2, 4.2086),
    Sketcher.Constraint("DistanceX", 4, 2, -1, 1, 4.291),
    Sketcher.Constraint("DistanceY", -1, 1, 12, 2, 8.328),
    Sketcher.Constraint("DistanceX", 5, 2, 1, 2, 12.803),
    Sketcher.Constraint("DistanceY", 8, 2, -1, 1, 8.4914),
])
pocket1 = doc.addObject("PartDesign::Pocket", "Pocket")
body.addObject(pocket1)
pocket1.Profile = sketch4
pocket1.Length = 0.2

# Sketch on XZ plane
sketch5 = doc.addObject("Sketcher::SketchObject", "Sketch004")
body.addObject(sketch5)
sketch5.AttachmentSupport = (doc.XZ_Plane, [""])
sketch5.MapMode = "FlatFace"
sketch5.addGeometry([
    Part.LineSegment(Vector(5, 4, 0), Vector(8.0623, 4, 0)),  # 0
    Part.ArcOfCircle(Part.Circle(Vector(0, 0, 0), Vector(0, 0, 1), 9), math.radians(26.38768), math.radians(63.61232)),  # 1
    Part.LineSegment(Vector(4, 8.0623, 0), Vector(4, 5, 0)),  # 2
    Part.LineSegment(Vector(4, 5, 0), Vector(5, 4, 0)),  # 3
    Part.ArcOfCircle(Part.Circle(Vector(0, 0, 0), Vector(0, 0, 1), 9), math.radians(-63.61232), math.radians(-26.38768)),  # 4
    Part.LineSegment(Vector(8.0623, -4, 0), Vector(5, -4, 0)),  # 5
    Part.LineSegment(Vector(5, -4, 0), Vector(4, -5, 0)),  # 6
    Part.LineSegment(Vector(4, -5, 0), Vector(4, -8.0623, 0)),  # 7
    Part.LineSegment(Vector(-4, 5, 0), Vector(-4, 8.0623, 0)),  # 8
    Part.ArcOfCircle(Part.Circle(Vector(0, 0, 0), Vector(0, 0, 1), 9), math.radians(116.38768), math.radians(153.61232)),  # 9
    Part.LineSegment(Vector(-8.0623, 4, 0), Vector(-5, 4, 0)),  # 10
    Part.LineSegment(Vector(-5, 4, 0), Vector(-4, 5, 0)),  # 11
    Part.ArcOfCircle(Part.Circle(Vector(0, 0, 0), Vector(0, 0, 1), 9), math.radians(-153.61232), math.radians(-116.38768)),  # 12
    Part.LineSegment(Vector(-4, -8.0623, 0), Vector(-4, -5, 0)),  # 13
    Part.LineSegment(Vector(-4, -5, 0), Vector(-5, -4, 0)),  # 14
    Part.LineSegment(Vector(-5, -4, 0), Vector(-8.0623, -4, 0)),  # 15
], False)
sketch5.addConstraint([
    Sketcher.Constraint("Coincident", 0, 2, 1, 1),
    Sketcher.Constraint("Coincident", 1, 2, 2, 1),
    Sketcher.Constraint("Coincident", 2, 2, 3, 1),
    Sketcher.Constraint("Coincident", 3, 2, 0, 1),
    Sketcher.Constraint("Coincident", 4, 2, 5, 1),
    Sketcher.Constraint("Coincident", 5, 2, 6, 1),
    Sketcher.Constraint("Coincident", 6, 2, 7, 1),
    Sketcher.Constraint("Coincident", 7, 2, 4, 1),
    Sketcher.Constraint("Coincident", 8, 2, 9, 1),
    Sketcher.Constraint("Coincident", 9, 2, 10, 1),
    Sketcher.Constraint("Coincident", 10, 2, 11, 1),
    Sketcher.Constraint("Coincident", 11, 2, 8, 1),
    Sketcher.Constraint("Coincident", 12, 2, 13, 1),
    Sketcher.Constraint("Coincident", 13, 2, 14, 1),
    Sketcher.Constraint("Coincident", 14, 2, 15, 1),
    Sketcher.Constraint("Coincident", 15, 2, 12, 1),
    Sketcher.Constraint("Horizontal", 0),
    Sketcher.Constraint("Vertical", 2),
    Sketcher.Constraint("Horizontal", 5),
    Sketcher.Constraint("Vertical", 7),
    Sketcher.Constraint("Vertical", 8),
    Sketcher.Constraint("Horizontal", 10),
    Sketcher.Constraint("Vertical", 13),
    Sketcher.Constraint("Horizontal", 15),
    Sketcher.Constraint("Coincident", 1, 3, -1, 1),
    Sketcher.Constraint("Coincident", 4, 3, -1, 1),
    Sketcher.Constraint("Coincident", 9, 3, -1, 1),
    Sketcher.Constraint("Coincident", 12, 3, -1, 1),
    Sketcher.Constraint("Equal", 1, 4),
    Sketcher.Constraint("Equal", 4, 9),
    Sketcher.Constraint("Equal", 9, 12),
    Sketcher.Constraint("Symmetric", 5, 2, 10, 2, -1, 1),
    Sketcher.Constraint("Symmetric", 6, 2, 11, 2, -1, 1),
    Sketcher.Constraint("Symmetric", 2, 2, 13, 2, -1, 1),
    Sketcher.Constraint("Symmetric", 3, 2, 14, 2, -1, 1),
    Sketcher.Constraint("Symmetric", 3, 2, 10, 2, -2),
    Sketcher.Constraint("Symmetric", 2, 2, 11, 2, -2),
    Sketcher.Constraint("Perpendicular", 3, 6),
    Sketcher.Constraint("Equal", 15, 2),
    Sketcher.Constraint("Radius", 1, 9.0),
    Sketcher.Constraint("DistanceY", 0, 2, 2, 2, 1.0),
    Sketcher.Constraint("DistanceY", -1, 1, 0, 2, 4.0),
])
pad4 = doc.addObject("PartDesign::Pad", "Pad003")
body.addObject(pad4)
pad4.Profile = sketch5
pad4.Length = 0.8

doc.recompute()
